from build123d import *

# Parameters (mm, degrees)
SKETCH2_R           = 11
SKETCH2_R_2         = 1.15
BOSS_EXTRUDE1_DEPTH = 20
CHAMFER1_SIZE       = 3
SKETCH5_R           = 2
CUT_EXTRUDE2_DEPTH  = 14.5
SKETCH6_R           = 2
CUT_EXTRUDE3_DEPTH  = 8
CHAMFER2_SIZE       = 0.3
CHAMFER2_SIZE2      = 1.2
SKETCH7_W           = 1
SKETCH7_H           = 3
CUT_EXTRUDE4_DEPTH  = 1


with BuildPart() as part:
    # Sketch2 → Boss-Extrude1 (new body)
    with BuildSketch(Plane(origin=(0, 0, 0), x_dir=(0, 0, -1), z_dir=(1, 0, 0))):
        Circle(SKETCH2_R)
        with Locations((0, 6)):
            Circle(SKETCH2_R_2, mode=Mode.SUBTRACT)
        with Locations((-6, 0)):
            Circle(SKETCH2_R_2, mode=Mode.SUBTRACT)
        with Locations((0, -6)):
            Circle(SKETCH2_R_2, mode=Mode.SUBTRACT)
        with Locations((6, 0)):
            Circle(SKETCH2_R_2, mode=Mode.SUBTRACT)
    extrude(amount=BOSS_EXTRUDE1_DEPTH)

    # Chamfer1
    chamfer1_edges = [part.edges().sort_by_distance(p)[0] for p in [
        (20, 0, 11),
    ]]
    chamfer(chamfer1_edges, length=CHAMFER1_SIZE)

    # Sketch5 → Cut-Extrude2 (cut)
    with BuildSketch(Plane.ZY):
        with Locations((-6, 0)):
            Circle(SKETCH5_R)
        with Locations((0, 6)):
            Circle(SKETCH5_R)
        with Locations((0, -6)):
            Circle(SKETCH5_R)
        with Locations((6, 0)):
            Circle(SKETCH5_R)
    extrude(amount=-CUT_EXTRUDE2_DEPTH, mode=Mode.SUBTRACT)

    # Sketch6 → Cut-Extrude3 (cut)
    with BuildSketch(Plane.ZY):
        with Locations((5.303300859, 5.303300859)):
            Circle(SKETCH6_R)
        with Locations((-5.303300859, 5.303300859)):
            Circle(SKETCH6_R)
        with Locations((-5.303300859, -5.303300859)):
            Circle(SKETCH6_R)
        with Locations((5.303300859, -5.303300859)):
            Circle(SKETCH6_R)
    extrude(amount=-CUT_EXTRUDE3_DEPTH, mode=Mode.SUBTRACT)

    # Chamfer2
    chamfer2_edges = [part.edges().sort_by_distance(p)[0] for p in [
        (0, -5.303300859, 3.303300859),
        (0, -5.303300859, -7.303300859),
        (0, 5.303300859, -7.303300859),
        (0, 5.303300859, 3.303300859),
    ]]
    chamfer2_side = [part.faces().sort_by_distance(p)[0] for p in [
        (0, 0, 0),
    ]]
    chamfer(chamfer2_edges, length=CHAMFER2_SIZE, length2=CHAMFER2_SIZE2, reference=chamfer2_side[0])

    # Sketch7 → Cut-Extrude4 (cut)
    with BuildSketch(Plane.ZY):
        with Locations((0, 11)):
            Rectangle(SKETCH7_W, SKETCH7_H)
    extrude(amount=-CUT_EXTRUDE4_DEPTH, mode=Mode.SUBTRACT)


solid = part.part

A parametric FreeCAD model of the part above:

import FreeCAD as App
import Part
import Sketcher


def edges_at(feature, points):
    """Names of the edges that pass closest to the given points."""
    edges = feature.Shape.Edges
    near = lambda p: min(range(len(edges)), key=lambda i: edges[i].distToShape(Part.Vertex(*p))[0])
    return sorted({f"Edge{near(p) + 1}" for p in points})


def add_polygon(sketch, points):
    """Adds a closed chain of lines whose ends are joined by coincident constraints."""
    first, n = sketch.GeometryCount, len(points)
    for a, b in zip(points, points[1:] + points[:1]):
        sketch.addGeometry(Part.LineSegment(App.Vector(*a, 0), App.Vector(*b, 0)), False)
    for i in range(n):
        sketch.addConstraint(Sketcher.Constraint("Coincident", first + i, 2, first + (i + 1) % n, 1))

doc = App.newDocument("Part")
params = doc.addObject("Spreadsheet::Sheet", "Params")
for row, (alias, value) in enumerate([
    ("sketch1_diameter", "22 mm"),
    ("sketch1_diameter2", "2.3 mm"),
    ("pad1_length", "20 mm"),
    ("chamfer_size", "3 mm"),
    ("sketch2_diameter", "4 mm"),
    ("pocket1_length", "14.5 mm"),
    ("sketch3_diameter", "4 mm"),
    ("pocket2_length", "8 mm"),
    ("chamfer2_size", "0.3 mm"),
    ("chamfer2_size2", "1.2 mm"),
    ("sketch4_width", "3 mm"),
    ("sketch4_height", "1 mm"),
    ("pocket3_length", "1 mm"),
], start=1):
    params.set(f"A{row}", alias)
    params.set(f"B{row}", "=" + value)
    params.setAlias(f"B{row}", alias)

body = doc.addObject("PartDesign::Body", "Body")

# Sketch on YZ plane
sketch1 = body.newObject("Sketcher::SketchObject", "Sketch")
sketch1.AttachmentSupport = (doc.getObject("YZ_Plane"), [""])
sketch1.MapMode = "FlatFace"
sketch1.addGeometry([
    Part.Circle(App.Vector(0, 0, 0), App.Vector(0, 0, 1), 11),  # 0
    Part.Circle(App.Vector(-6, 0, 0), App.Vector(0, 0, 1), 1.1),  # 1
    Part.Circle(App.Vector(0, 6, 0), App.Vector(0, 0, 1), 1.1),  # 2
    Part.Circle(App.Vector(0, -6, 0), App.Vector(0, 0, 1), 1.1),  # 3
    Part.Circle(App.Vector(6, 0, 0), App.Vector(0, 0, 1), 1.1),  # 4
], False)
sketch1.addConstraint([
    Sketcher.Constraint("Coincident", 0, 3, -1, 1),
    Sketcher.Constraint("Equal", 1, 2),
    Sketcher.Constraint("Equal", 2, 3),
    Sketcher.Constraint("Equal", 3, 4),
    Sketcher.Constraint("Symmetric", 2, 3, 3, 3, -1, 1),
    Sketcher.Constraint("Symmetric", 1, 3, 4, 3, -1, 1),
    Sketcher.Constraint("PointOnObject", 1, 3, -1),
    Sketcher.Constraint("PointOnObject", 2, 3, -2),
    Sketcher.Constraint("Diameter", 0, 22.0),
    Sketcher.Constraint("Diameter", 1, 2.3),
    Sketcher.Constraint("DistanceX", 1, 3, -1, 1, 6.0),
    Sketcher.Constraint("DistanceY", -1, 1, 2, 3, 6.0),
])
sketch1.setExpression("Constraints[8]", "Params.sketch1_diameter")
sketch1.setExpression("Constraints[9]", "Params.sketch1_diameter2")
pad1 = body.newObject("PartDesign::Pad", "Pad")
pad1.Profile = sketch1
pad1.setExpression("Length", "Params.pad1_length")
doc.recompute()

chamfer = body.newObject("PartDesign::Chamfer", "Chamfer")
chamfer.Base = (pad1, edges_at(pad1, [(20, 0, 11)]))
chamfer.setExpression("Size", "Params.chamfer_size")

# Sketch on YZ plane
sketch2 = body.newObject("Sketcher::SketchObject", "Sketch001")
sketch2.AttachmentSupport = (doc.getObject("YZ_Plane"), [""])
sketch2.MapMode = "FlatFace"
sketch2.addGeometry([
    Part.Circle(App.Vector(0, -6, 0), App.Vector(0, 0, 1), 2),
    Part.Circle(App.Vector(6, 0, 0), App.Vector(0, 0, 1), 2),
    Part.Circle(App.Vector(-6, 0, 0), App.Vector(0, 0, 1), 2),
    Part.Circle(App.Vector(0, 6, 0), App.Vector(0, 0, 1), 2),
], False)
sketch2.addConstraint([
    Sketcher.Constraint("Equal", 0, 1),
    Sketcher.Constraint("Equal", 1, 2),
    Sketcher.Constraint("Equal", 2, 3),
    Sketcher.Constraint("Symmetric", 1, 3, 2, 3, -1, 1),
    Sketcher.Constraint("Symmetric", 0, 3, 3, 3, -1, 1),
    Sketcher.Constraint("PointOnObject", 0, 3, -2),
    Sketcher.Constraint("PointOnObject", 1, 3, -1),
    Sketcher.Constraint("Diameter", 0, 4.0),
    Sketcher.Constraint("DistanceY", 0, 3, -1, 1, 6.0),
    Sketcher.Constraint("DistanceX", -1, 1, 1, 3, 6.0),
])
sketch2.setExpression("Constraints[7]", "Params.sketch2_diameter")
pocket1 = body.newObject("PartDesign::Pocket", "Pocket")
pocket1.Profile = sketch2
pocket1.setExpression("Length", "Params.pocket1_length")
pocket1.Reversed = True

# Sketch on YZ plane
sketch3 = body.newObject("Sketcher::SketchObject", "Sketch002")
sketch3.AttachmentSupport = (doc.getObject("YZ_Plane"), [""])
sketch3.MapMode = "FlatFace"
sketch3.addGeometry([
    Part.Circle(App.Vector(5.3, 5.3, 0), App.Vector(0, 0, 1), 2),
    Part.Circle(App.Vector(5.3, -5.3, 0), App.Vector(0, 0, 1), 2),
    Part.Circle(App.Vector(-5.3, -5.3, 0), App.Vector(0, 0, 1), 2),
    Part.Circle(App.Vector(-5.3, 5.3, 0), App.Vector(0, 0, 1), 2),
], False)
sketch3.addConstraint([
    Sketcher.Constraint("Equal", 0, 1),
    Sketcher.Constraint("Equal", 1, 2),
    Sketcher.Constraint("Equal", 2, 3),
    Sketcher.Constraint("Symmetric", 0, 3, 2, 3, -1, 1),
    Sketcher.Constraint("Symmetric", 1, 3, 3, 3, -1, 1),
    Sketcher.Constraint("Symmetric", 1, 3, 2, 3, -2),
    Sketcher.Constraint("Diameter", 0, 4.0),
    Sketcher.Constraint("DistanceX", -1, 1, 0, 3, 5.303301),
    Sketcher.Constraint("DistanceY", -1, 1, 0, 3, 5.303301),
])
sketch3.setExpression("Constraints[6]", "Params.sketch3_diameter")
pocket2 = body.newObject("PartDesign::Pocket", "Pocket001")
pocket2.Profile = sketch3
pocket2.setExpression("Length", "Params.pocket2_length")
pocket2.Reversed = True
doc.recompute()

chamfer2 = body.newObject("PartDesign::Chamfer", "Chamfer001")
chamfer2.Base = (pocket2, edges_at(pocket2, [
    (0, -5.303, 3.303),
    (0, -5.303, -7.303),
    (0, 5.303, -7.303),
    (0, 5.303, 3.303),
]))
chamfer2.ChamferType = "Two distances"
chamfer2.setExpression("Size", "Params.chamfer2_size")
chamfer2.setExpression("Size2", "Params.chamfer2_size2")

# Sketch on YZ plane
sketch4 = body.newObject("Sketcher::SketchObject", "Sketch003")
sketch4.AttachmentSupport = (doc.getObject("YZ_Plane"), [""])
sketch4.MapMode = "FlatFace"
add_polygon(sketch4, [(12.5, -0.5), (9.5, -0.5), (9.5, 0.5), (12.5, 0.5)])  # lines 0-3
sketch4.addConstraint([
    Sketcher.Constraint("Horizontal", 0),
    Sketcher.Constraint("Vertical", 1),
    Sketcher.Constraint("Horizontal", 2),
    Sketcher.Constraint("Vertical", 3),
    Sketcher.Constraint("DistanceX", 0, 2, 0, 1, 3.0),
    Sketcher.Constraint("DistanceY", 1, 1, 1, 2, 1.0),
    Sketcher.Constraint("DistanceX", -1, 1, 0, 2, 9.5),
    Sketcher.Constraint("DistanceY", 0, 2, -1, 1, 0.5),
])
sketch4.setExpression("Constraints[8]", "Params.sketch4_width")
sketch4.setExpression("Constraints[9]", "Params.sketch4_height")
pocket3 = body.newObject("PartDesign::Pocket", "Pocket002")
pocket3.Profile = sketch4
pocket3.setExpression("Length", "Params.pocket3_length")
pocket3.Reversed = True

doc.recompute()
